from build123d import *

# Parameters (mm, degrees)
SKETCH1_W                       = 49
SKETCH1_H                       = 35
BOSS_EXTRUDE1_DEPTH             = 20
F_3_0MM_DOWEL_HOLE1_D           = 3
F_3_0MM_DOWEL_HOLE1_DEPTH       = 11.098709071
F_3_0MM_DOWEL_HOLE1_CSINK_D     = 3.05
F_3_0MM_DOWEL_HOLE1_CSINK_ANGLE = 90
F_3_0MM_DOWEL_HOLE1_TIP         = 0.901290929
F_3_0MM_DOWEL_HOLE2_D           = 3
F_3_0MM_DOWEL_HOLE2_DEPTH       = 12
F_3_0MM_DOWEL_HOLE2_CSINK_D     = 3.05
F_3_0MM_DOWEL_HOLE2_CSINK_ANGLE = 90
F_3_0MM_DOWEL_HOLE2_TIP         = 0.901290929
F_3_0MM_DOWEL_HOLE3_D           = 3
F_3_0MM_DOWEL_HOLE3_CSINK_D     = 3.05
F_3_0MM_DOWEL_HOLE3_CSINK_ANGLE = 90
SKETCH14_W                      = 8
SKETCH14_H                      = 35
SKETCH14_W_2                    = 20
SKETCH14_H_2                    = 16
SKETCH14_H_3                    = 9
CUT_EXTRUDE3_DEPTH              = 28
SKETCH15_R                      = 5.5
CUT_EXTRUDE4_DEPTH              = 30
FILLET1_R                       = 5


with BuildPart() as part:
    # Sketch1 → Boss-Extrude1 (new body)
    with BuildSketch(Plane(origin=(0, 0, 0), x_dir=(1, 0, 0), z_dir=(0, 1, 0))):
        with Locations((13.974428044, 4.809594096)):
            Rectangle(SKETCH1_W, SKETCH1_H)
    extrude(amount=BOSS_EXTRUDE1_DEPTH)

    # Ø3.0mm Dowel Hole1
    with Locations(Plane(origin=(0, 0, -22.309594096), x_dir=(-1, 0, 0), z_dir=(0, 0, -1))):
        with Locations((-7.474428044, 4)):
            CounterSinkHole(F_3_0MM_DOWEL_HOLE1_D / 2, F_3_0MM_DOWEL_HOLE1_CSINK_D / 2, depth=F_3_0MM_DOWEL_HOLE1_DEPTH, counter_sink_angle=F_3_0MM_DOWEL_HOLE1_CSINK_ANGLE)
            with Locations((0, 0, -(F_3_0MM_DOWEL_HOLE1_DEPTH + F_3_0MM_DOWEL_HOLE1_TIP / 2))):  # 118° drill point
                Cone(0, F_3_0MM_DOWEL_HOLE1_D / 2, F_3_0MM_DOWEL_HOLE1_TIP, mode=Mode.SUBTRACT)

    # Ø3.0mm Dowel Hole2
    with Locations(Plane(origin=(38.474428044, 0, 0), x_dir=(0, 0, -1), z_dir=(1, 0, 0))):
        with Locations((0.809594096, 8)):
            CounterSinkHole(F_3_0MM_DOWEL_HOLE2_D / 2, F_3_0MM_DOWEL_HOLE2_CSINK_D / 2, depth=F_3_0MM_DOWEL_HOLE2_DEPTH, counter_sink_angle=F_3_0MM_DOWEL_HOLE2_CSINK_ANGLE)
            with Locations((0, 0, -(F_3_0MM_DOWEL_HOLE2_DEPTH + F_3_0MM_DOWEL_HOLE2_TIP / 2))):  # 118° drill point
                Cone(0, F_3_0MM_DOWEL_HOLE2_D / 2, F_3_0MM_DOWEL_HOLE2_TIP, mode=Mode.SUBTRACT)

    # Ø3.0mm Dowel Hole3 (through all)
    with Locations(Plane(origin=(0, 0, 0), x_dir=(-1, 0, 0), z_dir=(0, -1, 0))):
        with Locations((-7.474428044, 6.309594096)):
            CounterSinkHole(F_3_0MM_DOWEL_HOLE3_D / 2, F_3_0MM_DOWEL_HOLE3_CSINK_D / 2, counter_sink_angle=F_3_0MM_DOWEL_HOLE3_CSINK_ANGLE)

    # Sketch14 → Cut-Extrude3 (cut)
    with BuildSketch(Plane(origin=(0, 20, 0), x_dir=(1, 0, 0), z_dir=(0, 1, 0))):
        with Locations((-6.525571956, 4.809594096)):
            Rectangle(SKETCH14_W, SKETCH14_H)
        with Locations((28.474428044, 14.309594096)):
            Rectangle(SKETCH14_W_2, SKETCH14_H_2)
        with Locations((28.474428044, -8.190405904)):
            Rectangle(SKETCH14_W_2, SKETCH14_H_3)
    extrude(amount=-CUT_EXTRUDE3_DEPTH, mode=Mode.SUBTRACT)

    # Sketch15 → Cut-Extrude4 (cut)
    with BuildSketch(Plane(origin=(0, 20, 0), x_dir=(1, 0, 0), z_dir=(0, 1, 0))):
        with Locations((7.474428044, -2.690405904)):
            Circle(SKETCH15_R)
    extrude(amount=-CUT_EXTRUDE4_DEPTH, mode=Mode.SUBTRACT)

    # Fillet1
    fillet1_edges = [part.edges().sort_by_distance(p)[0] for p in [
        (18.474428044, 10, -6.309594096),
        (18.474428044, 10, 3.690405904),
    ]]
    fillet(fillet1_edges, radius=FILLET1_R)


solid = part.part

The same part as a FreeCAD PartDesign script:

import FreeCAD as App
import Part
import Sketcher
from FreeCAD import Vector


def edges_at(feature, points):
    """Names of the edges that pass closest to the given points."""
    edges = feature.Shape.Edges
    near = lambda p: min(range(len(edges)), key=lambda i: edges[i].distToShape(Part.Vertex(*p))[0])
    return sorted({f"Edge{near(p) + 1}" for p in points})


def add_polygon(sketch, points):
    """Adds a closed chain of lines whose ends are joined by coincident constraints."""
    first, n = sketch.GeometryCount, len(points)
    for a, b in zip(points, points[1:] + points[:1]):
        sketch.addGeometry(Part.LineSegment(App.Vector(*a, 0), App.Vector(*b, 0)), False)
    for i in range(n):
        sketch.addConstraint(Sketcher.Constraint("Coincident", first + i, 2, first + (i + 1) % n, 1))

doc = App.newDocument("Part")
body = doc.addObject("PartDesign::Body", "Body")

# Sketch on XZ plane
sketch1 = body.newObject("Sketcher::SketchObject", "Sketch")
sketch1.AttachmentSupport = (doc.getObject("XZ_Plane"), [""])
sketch1.MapMode = "FlatFace"
add_polygon(sketch1, [(-10.525572, -22.309594), (-10.525572, 12.690406), (38.474428, 12.690406), (38.474428, -22.309594)])  # lines 0-3
sketch1.addConstraint([
    Sketcher.Constraint("Vertical", 0),
    Sketcher.Constraint("Horizontal", 1),
    Sketcher.Constraint("Vertical", 2),
    Sketcher.Constraint("Horizontal", 3),
    Sketcher.Constraint("DistanceX", 1, 1, 1, 2, 49.0),
    Sketcher.Constraint("DistanceY", 0, 1, 0, 2, 35.0),
    Sketcher.Constraint("DistanceX", 0, 2, -1, 1, 10.525572),
    Sketcher.Constraint("DistanceY", -1, 1, 0, 2, 12.690406),
])
pad1 = body.newObject("PartDesign::Pad", "Pad")
pad1.Profile = sketch1
pad1.Length = 20
pad1.Reversed = True

# Sketch on XY plane
sketch2 = body.newObject("Sketcher::SketchObject", "Sketch001")
sketch2.AttachmentSupport = (doc.getObject("XY_Plane"), [""])
sketch2.MapMode = "FlatFace"
sketch2.AttachmentOffset = App.Placement(Vector(0, 0, -22.309594), App.Rotation())
sketch2.addGeometry(Part.Circle(Vector(7.474428, 4, 0), Vector(0, 0, 1), 1.5), False)
sketch2.addConstraint([
    Sketcher.Constraint("Diameter", 0, 3.0),
    Sketcher.Constraint("DistanceY", -1, 1, 0, 3, 4.0),
    Sketcher.Constraint("DistanceX", -1, 1, 0, 3, 7.474428),
])
doc.recompute()
hole = body.newObject("PartDesign::Hole", "Hole")
hole.Profile = sketch2
hole.ThreadType = "None"
hole.Diameter = 3
hole.DepthType = "Dimension"
hole.Depth = 11.098709
hole.DrillPoint = "Angled"
hole.DrillPointAngle = 118
hole.HoleCutType = "Countersink"
hole.HoleCutDiameter = 3.05
hole.HoleCutCountersinkAngle = 90
hole.Reversed = True

# Sketch on YZ plane
sketch3 = body.newObject("Sketcher::SketchObject", "Sketch002")
sketch3.AttachmentSupport = (doc.getObject("YZ_Plane"), [""])
sketch3.MapMode = "FlatFace"
sketch3.AttachmentOffset = App.Placement(Vector(0, 0, 38.474428), App.Rotation())
sketch3.addGeometry(Part.Circle(Vector(8, -0.809594, 0), Vector(0, 0, 1), 1.5), False)
sketch3.addConstraint([
    Sketcher.Constraint("Diameter", 0, 3.0),
    Sketcher.Constraint("DistanceX", -1, 1, 0, 3, 8.0),
    Sketcher.Constraint("DistanceY", 0, 3, -1, 1, 0.809594),
])
doc.recompute()
hole2 = body.newObject("PartDesign::Hole", "Hole001")
hole2.Profile = sketch3
hole2.ThreadType = "None"
hole2.Diameter = 3
hole2.DepthType = "Dimension"
hole2.Depth = 12
hole2.DrillPoint = "Angled"
hole2.DrillPointAngle = 118
hole2.HoleCutType = "Countersink"
hole2.HoleCutDiameter = 3.05
hole2.HoleCutCountersinkAngle = 90

# Sketch on XZ plane
sketch4 = body.newObject("Sketcher::SketchObject", "Sketch003")
sketch4.AttachmentSupport = (doc.getObject("XZ_Plane"), [""])
sketch4.MapMode = "FlatFace"
sketch4.addGeometry(Part.Circle(Vector(7.474428, -6.309594, 0), Vector(0, 0, 1), 1.5), False)
sketch4.addConstraint([
    Sketcher.Constraint("Diameter", 0, 3.0),
    Sketcher.Constraint("DistanceX", -1, 1, 0, 3, 7.474428),
    Sketcher.Constraint("DistanceY", 0, 3, -1, 1, 6.309594),
])
doc.recompute()
hole3 = body.newObject("PartDesign::Hole", "Hole002")
hole3.Profile = sketch4
hole3.ThreadType = "None"
hole3.Diameter = 3
hole3.DepthType = "ThroughAll"
hole3.HoleCutType = "Countersink"
hole3.HoleCutDiameter = 3.05
hole3.HoleCutCountersinkAngle = 90

# Sketch on XZ plane
sketch5 = body.newObject("Sketcher::SketchObject", "Sketch004")
sketch5.AttachmentSupport = (doc.getObject("XZ_Plane"), [""])
sketch5.MapMode = "FlatFace"
sketch5.AttachmentOffset = App.Placement(Vector(0, 0, -20), App.Rotation())
add_polygon(sketch5, [(-10.525572, -22.309594), (-10.525572, 12.690406), (-2.525572, 12.690406), (-2.525572, -22.309594)])  # lines 0-3
add_polygon(sketch5, [(18.474428, -22.309594), (18.474428, -6.309594), (38.474428, -6.309594), (38.474428, -22.309594)])  # lines 4-7
add_polygon(sketch5, [(18.474428, 3.690406), (18.474428, 12.690406), (38.474428, 12.690406), (38.474428, 3.690406)])  # lines 8-11
sketch5.addConstraint([
    Sketcher.Constraint("Vertical", 0),
    Sketcher.Constraint("Horizontal", 1),
    Sketcher.Constraint("Vertical", 2),
    Sketcher.Constraint("Horizontal", 3),
    Sketcher.Constraint("Vertical", 4),
    Sketcher.Constraint("Horizontal", 5),
    Sketcher.Constraint("Vertical", 6),
    Sketcher.Constraint("Horizontal", 7),
    Sketcher.Constraint("Vertical", 8),
    Sketcher.Constraint("Horizontal", 9),
    Sketcher.Constraint("Vertical", 10),
    Sketcher.Constraint("Horizontal", 11),
    Sketcher.Constraint("Horizontal", 3, 2, 6, 2),
    Sketcher.Constraint("Horizontal", 1, 2, 8, 2),
    Sketcher.Constraint("Vertical", 7, 2, 8, 2),
    Sketcher.Constraint("Vertical", 6, 2, 9, 2),
    Sketcher.Constraint("DistanceX", 1, 1, 1, 2, 8.0),
    Sketcher.Constraint("DistanceX", 5, 1, 5, 2, 20.0),
    Sketcher.Constraint("DistanceY", 0, 1, 0, 2, 35.0),
    Sketcher.Constraint("DistanceY", 4, 1, 4, 2, 16.0),
    Sketcher.Constraint("DistanceY", 8, 1, 8, 2, 9.0),
    Sketcher.Constraint("DistanceX", 2, 2, 4, 2, 21.0),
    Sketcher.Constraint("DistanceX", 0, 2, -1, 1, 10.525572),
    Sketcher.Constraint("DistanceY", -1, 1, 0, 2, 12.690406),
])
pocket1 = body.newObject("PartDesign::Pocket", "Pocket")
pocket1.Profile = sketch5
pocket1.Length = 28
pocket1.Reversed = True

# Sketch on XZ plane
sketch6 = body.newObject("Sketcher::SketchObject", "Sketch005")
sketch6.AttachmentSupport = (doc.getObject("XZ_Plane"), [""])
sketch6.MapMode = "FlatFace"
sketch6.AttachmentOffset = App.Placement(Vector(0, 0, -20), App.Rotation())
sketch6.addGeometry(Part.Circle(Vector(7.474428, 2.690406, 0), Vector(0, 0, 1), 5.5), False)
sketch6.addConstraint([
    Sketcher.Constraint("Diameter", 0, 11.0),
    Sketcher.Constraint("DistanceX", -1, 1, 0, 3, 7.474428),
    Sketcher.Constraint("DistanceY", -1, 1, 0, 3, 2.690406),
])
pocket2 = body.newObject("PartDesign::Pocket", "Pocket001")
pocket2.Profile = sketch6
pocket2.Length = 30
pocket2.Reversed = True
doc.recompute()

fillet = body.newObject("PartDesign::Fillet", "Fillet")
fillet.Base = (pocket2, edges_at(pocket2, [(18.474, 10, -6.31), (18.474, 10, 3.69)]))
fillet.Radius = 5

doc.recompute()
